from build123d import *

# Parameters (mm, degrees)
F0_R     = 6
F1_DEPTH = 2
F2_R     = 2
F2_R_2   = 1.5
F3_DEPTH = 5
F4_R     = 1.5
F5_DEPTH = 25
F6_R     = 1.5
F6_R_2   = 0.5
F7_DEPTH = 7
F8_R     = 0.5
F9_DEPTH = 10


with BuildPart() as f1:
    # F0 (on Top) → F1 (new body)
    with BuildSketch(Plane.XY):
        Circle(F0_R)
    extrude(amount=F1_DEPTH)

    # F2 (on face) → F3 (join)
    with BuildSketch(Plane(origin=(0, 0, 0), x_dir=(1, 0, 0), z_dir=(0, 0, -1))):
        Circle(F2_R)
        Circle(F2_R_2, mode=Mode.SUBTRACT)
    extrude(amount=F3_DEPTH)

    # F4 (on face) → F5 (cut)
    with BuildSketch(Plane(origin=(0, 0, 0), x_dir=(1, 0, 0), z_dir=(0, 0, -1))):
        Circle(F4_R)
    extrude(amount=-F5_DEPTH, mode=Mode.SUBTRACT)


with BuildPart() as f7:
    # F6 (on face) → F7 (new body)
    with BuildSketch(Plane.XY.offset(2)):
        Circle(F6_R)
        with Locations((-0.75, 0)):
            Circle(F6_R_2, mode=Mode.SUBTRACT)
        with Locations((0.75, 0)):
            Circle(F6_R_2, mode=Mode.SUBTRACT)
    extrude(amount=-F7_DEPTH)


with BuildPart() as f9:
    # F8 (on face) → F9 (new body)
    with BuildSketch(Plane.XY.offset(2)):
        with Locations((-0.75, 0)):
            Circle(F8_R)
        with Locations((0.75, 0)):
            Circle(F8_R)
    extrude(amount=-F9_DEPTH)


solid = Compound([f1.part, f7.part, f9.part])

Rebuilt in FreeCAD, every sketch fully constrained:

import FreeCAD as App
import Part
import Sketcher

doc = App.newDocument("Part")
body = doc.addObject("PartDesign::Body", "Body")

# Sketch on XY plane
sketch1 = doc.addObject("Sketcher::SketchObject", "Sketch")
body.addObject(sketch1)
sketch1.AttachmentSupport = (doc.XY_Plane, [""])
sketch1.MapMode = "FlatFace"
sketch1.addGeometry(Part.Circle(App.Vector(0, 0, 0), App.Vector(0, 0, 1), 6), False)
sketch1.addConstraint(Sketcher.Constraint("Coincident", 0, 3, -1, 1))
sketch1.addConstraint(Sketcher.Constraint("Diameter", 0, 12.0))
pad1 = doc.addObject("PartDesign::Pad", "Pad")
body.addObject(pad1)
pad1.Profile = sketch1
pad1.Length = 2

# Sketch on XY plane
sketch2 = doc.addObject("Sketcher::SketchObject", "Sketch001")
body.addObject(sketch2)
sketch2.AttachmentSupport = (doc.XY_Plane, [""])
sketch2.MapMode = "FlatFace"
sketch2.addGeometry(Part.Circle(App.Vector(0, 0, 0), App.Vector(0, 0, 1), 2), False)
sketch2.addGeometry(Part.Circle(App.Vector(0, 0, 0), App.Vector(0, 0, 1), 1.5), False)
sketch2.addConstraint(Sketcher.Constraint("Coincident", 0, 3, -1, 1))
sketch2.addConstraint(Sketcher.Constraint("Coincident", 1, 3, -1, 1))
sketch2.addConstraint(Sketcher.Constraint("Diameter", 0, 4.0))
sketch2.addConstraint(Sketcher.Constraint("Diameter", 1, 3.0))
pad2 = doc.addObject("PartDesign::Pad", "Pad001")
body.addObject(pad2)
pad2.Profile = sketch2
pad2.Length = 5
pad2.Reversed = True

# Sketch on XY plane
sketch3 = doc.addObject("Sketcher::SketchObject", "Sketch002")
body.addObject(sketch3)
sketch3.AttachmentSupport = (doc.XY_Plane, [""])
sketch3.MapMode = "FlatFace"
sketch3.addGeometry(Part.Circle(App.Vector(0, 0, 0), App.Vector(0, 0, 1), 1.5), False)
sketch3.addConstraint(Sketcher.Constraint("Coincident", 0, 3, -1, 1))
sketch3.addConstraint(Sketcher.Constraint("Diameter", 0, 3.0))
pocket1 = doc.addObject("PartDesign::Pocket", "Pocket")
body.addObject(pocket1)
pocket1.Profile = sketch3
pocket1.Length = 25
pocket1.Reversed = True
body2 = doc.addObject("PartDesign::Body", "Body001")

# Sketch on XY plane
sketch4 = doc.addObject("Sketcher::SketchObject", "Sketch003")
body2.addObject(sketch4)
sketch4.AttachmentSupport = (doc.getObject("XY_Plane001"), [""])
sketch4.MapMode = "FlatFace"
sketch4.AttachmentOffset = App.Placement(App.Vector(0, 0, 2), App.Rotation())
sketch4.addGeometry(Part.Circle(App.Vector(0, 0, 0), App.Vector(0, 0, 1), 1.5), False)
sketch4.addGeometry(Part.Circle(App.Vector(-0.8, 0, 0), App.Vector(0, 0, 1), 0.5), False)
sketch4.addGeometry(Part.Circle(App.Vector(0.8, 0, 0), App.Vector(0, 0, 1), 0.5), False)
sketch4.addConstraint(Sketcher.Constraint("Coincident", 0, 3, -1, 1))
sketch4.addConstraint(Sketcher.Constraint("Equal", 1, 2))
sketch4.addConstraint(Sketcher.Constraint("Symmetric", 1, 3, 2, 3, -1, 1))
sketch4.addConstraint(Sketcher.Constraint("PointOnObject", 1, 3, -1))
sketch4.addConstraint(Sketcher.Constraint("Diameter", 0, 3.0))
sketch4.addConstraint(Sketcher.Constraint("Diameter", 1, 1.0))
sketch4.addConstraint(Sketcher.Constraint("DistanceX", 1, 3, 2, 3, 1.5))
pad3 = doc.addObject("PartDesign::Pad", "Pad002")
body2.addObject(pad3)
pad3.Profile = sketch4
pad3.Length = 7
pad3.Reversed = True
body3 = doc.addObject("PartDesign::Body", "Body002")
body3.AllowCompound = True

# Sketch on XY plane
sketch5 = doc.addObject("Sketcher::SketchObject", "Sketch004")
body3.addObject(sketch5)
sketch5.AttachmentSupport = (doc.getObject("XY_Plane002"), [""])
sketch5.MapMode = "FlatFace"
sketch5.AttachmentOffset = App.Placement(App.Vector(0, 0, 2), App.Rotation())
sketch5.addGeometry(Part.Circle(App.Vector(-0.8, 0, 0), App.Vector(0, 0, 1), 0.5), False)
sketch5.addGeometry(Part.Circle(App.Vector(0.8, 0, 0), App.Vector(0, 0, 1), 0.5), False)
sketch5.addConstraint(Sketcher.Constraint("Equal", 0, 1))
sketch5.addConstraint(Sketcher.Constraint("Symmetric", 0, 3, 1, 3, -1, 1))
sketch5.addConstraint(Sketcher.Constraint("PointOnObject", 0, 3, -1))
sketch5.addConstraint(Sketcher.Constraint("Diameter", 0, 1.0))
sketch5.addConstraint(Sketcher.Constraint("DistanceX", 0, 3, 1, 3, 1.5))
pad4 = doc.addObject("PartDesign::Pad", "Pad003")
body3.addObject(pad4)
pad4.Profile = sketch5
pad4.Length = 10
pad4.Reversed = True

doc.recompute()
